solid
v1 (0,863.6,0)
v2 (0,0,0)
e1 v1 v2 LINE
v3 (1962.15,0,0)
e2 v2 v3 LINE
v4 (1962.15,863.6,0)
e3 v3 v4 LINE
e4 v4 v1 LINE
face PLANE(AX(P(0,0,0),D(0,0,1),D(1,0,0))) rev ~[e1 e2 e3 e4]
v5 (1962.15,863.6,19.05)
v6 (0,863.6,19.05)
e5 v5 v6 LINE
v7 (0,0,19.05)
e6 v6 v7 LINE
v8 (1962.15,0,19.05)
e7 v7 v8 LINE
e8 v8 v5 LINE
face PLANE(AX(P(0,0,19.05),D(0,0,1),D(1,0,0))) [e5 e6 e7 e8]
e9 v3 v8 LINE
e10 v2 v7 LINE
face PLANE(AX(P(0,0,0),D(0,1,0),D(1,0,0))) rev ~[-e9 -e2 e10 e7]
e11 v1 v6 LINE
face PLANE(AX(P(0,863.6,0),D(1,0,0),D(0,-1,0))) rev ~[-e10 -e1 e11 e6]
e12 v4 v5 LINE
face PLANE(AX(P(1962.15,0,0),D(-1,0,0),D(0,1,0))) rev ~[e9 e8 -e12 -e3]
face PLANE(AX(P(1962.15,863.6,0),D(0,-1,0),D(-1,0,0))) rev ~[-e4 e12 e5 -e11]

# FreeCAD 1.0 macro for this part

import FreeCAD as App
import Part
import Sketcher

V = App.Vector
Q = App.Units.Quantity


def add_polygon(sketch, points):
    """Adds a closed chain of lines whose ends are joined by coincident constraints."""
    first, n = sketch.GeometryCount, len(points)
    for a, b in zip(points, points[1:] + points[:1]):
        sketch.addGeometry(Part.LineSegment(App.Vector(*a, 0), App.Vector(*b, 0)), False)
    for i in range(n):
        sketch.addConstraint(Sketcher.Constraint("Coincident", first + i, 2, first + (i + 1) % n, 1))

doc = App.newDocument("Part")
body = doc.addObject("PartDesign::Body", "Body")

# Sketch on XY plane
sketch1 = body.newObject("Sketcher::SketchObject", "Sketch")
sketch1.AttachmentSupport = (doc.getObject("XY_Plane"), [""])
sketch1.MapMode = "FlatFace"
add_polygon(sketch1, [(0, 864), (0, 0), (1962, 0), (1962, 864)])  # lines 0-3
sketch1.addConstraint([
    Sketcher.Constraint("Vertical", 0),
    Sketcher.Constraint("Horizontal", 1),
    Sketcher.Constraint("Vertical", 2),
    Sketcher.Constraint("Horizontal", 3),
    Sketcher.Constraint("Coincident", 0, 2, -1, 1),
    Sketcher.Constraint("DistanceY", 0, 2, 0, 1, Q("34 in")),
    Sketcher.Constraint("DistanceX", 1, 1, 1, 2, Q("77.25 in")),
])
pad1 = body.newObject("PartDesign::Pad", "Pad")
pad1.Profile = sketch1
pad1.Length = Q("0.75 in")

doc.recompute()
